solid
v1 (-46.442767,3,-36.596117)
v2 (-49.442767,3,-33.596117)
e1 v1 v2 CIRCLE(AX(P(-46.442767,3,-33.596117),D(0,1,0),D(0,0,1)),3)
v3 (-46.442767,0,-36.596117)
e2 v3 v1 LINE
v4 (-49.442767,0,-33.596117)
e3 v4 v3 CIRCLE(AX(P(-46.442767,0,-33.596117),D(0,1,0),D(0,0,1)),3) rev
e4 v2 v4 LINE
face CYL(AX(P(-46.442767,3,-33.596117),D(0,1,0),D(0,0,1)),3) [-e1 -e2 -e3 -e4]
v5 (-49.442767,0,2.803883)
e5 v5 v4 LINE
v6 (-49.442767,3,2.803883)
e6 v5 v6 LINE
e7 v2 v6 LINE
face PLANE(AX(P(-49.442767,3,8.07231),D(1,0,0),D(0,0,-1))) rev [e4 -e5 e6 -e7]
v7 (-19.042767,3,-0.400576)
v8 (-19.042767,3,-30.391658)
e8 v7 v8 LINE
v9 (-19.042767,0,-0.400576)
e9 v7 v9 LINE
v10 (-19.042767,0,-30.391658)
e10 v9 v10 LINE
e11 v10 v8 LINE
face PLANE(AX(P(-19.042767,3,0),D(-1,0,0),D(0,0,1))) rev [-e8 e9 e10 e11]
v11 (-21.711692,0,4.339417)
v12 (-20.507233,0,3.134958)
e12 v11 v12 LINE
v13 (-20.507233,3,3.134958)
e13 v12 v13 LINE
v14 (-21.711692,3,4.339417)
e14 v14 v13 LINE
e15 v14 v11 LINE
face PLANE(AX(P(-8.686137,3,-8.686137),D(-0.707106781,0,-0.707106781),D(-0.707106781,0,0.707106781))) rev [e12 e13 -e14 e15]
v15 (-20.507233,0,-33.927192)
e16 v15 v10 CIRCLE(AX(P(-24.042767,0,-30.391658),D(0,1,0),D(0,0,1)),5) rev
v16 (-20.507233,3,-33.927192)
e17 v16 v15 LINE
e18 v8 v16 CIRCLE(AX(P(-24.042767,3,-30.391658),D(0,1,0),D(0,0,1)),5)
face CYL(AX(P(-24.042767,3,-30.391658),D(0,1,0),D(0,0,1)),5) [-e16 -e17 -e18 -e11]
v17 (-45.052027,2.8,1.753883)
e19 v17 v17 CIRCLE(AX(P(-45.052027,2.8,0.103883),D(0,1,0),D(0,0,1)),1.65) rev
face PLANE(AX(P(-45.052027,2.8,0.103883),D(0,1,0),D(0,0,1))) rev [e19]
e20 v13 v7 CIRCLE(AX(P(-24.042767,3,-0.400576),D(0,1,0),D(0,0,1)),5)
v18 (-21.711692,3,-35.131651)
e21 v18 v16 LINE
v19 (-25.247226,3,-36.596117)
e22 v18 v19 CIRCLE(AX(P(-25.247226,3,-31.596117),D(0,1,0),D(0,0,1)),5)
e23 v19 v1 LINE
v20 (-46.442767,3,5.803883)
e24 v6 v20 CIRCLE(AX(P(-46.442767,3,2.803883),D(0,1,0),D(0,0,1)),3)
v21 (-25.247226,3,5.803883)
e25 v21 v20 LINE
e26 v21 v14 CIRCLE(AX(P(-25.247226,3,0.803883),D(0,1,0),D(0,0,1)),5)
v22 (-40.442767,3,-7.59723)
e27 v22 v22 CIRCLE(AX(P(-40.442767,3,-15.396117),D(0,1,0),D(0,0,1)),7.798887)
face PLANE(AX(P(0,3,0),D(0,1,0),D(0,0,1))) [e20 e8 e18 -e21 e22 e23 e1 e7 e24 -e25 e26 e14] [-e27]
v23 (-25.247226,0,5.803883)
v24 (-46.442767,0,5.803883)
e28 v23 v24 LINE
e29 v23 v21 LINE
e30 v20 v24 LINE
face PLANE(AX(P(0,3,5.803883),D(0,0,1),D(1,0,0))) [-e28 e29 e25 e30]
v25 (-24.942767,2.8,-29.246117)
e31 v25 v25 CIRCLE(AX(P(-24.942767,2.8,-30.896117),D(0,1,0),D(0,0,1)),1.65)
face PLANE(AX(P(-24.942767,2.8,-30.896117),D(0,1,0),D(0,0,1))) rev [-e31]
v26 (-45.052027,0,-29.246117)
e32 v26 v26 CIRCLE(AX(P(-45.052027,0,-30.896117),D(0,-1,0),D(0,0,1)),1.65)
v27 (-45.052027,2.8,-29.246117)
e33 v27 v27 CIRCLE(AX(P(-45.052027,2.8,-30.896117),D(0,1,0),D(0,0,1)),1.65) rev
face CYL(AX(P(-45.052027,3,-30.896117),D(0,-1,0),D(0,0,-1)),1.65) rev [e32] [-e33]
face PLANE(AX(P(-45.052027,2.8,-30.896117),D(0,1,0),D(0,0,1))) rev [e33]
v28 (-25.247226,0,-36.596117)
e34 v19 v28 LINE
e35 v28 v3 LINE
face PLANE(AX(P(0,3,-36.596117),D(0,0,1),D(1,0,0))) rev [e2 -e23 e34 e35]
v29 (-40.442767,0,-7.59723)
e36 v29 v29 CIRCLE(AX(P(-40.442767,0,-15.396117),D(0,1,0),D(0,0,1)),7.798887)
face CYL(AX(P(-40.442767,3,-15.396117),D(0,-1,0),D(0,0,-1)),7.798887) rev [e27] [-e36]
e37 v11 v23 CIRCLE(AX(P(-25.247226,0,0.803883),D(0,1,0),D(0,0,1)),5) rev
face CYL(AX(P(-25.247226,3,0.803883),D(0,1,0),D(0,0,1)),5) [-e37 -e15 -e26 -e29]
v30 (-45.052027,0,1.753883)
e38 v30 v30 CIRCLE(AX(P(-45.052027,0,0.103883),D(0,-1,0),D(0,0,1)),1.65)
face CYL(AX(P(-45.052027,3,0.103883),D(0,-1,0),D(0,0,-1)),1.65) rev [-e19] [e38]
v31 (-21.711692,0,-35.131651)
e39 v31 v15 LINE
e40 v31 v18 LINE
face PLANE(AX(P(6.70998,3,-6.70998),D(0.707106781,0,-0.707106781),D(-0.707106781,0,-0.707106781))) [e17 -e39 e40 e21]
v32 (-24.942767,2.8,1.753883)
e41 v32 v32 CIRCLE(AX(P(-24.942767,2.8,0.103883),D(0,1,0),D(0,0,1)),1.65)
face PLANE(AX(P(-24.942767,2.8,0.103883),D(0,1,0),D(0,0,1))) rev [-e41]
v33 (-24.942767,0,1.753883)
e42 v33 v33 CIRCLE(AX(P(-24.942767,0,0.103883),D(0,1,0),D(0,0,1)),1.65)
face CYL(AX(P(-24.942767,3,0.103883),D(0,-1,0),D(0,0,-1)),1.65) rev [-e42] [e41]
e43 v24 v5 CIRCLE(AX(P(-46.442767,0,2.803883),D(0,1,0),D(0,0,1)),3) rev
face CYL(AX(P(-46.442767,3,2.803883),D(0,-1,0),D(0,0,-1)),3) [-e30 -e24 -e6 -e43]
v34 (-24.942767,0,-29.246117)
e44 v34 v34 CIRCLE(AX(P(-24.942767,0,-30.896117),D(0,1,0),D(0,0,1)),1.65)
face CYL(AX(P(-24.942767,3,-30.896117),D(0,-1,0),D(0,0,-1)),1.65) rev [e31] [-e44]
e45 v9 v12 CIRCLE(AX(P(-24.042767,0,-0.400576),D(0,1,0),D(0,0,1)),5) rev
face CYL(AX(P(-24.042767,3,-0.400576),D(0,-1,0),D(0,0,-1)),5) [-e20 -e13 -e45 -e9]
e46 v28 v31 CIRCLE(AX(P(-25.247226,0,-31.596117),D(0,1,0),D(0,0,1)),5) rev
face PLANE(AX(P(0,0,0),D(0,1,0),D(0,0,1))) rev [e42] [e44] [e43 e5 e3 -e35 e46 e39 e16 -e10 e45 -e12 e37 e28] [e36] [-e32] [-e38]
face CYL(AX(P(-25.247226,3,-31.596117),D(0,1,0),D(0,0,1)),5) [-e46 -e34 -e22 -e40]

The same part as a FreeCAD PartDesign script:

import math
import FreeCAD as App
import Part
import Sketcher

V = App.Vector


def edges_at(feature, points):
    """Names of the edges that pass closest to the given points."""
    edges = feature.Shape.Edges
    near = lambda p: min(range(len(edges)), key=lambda i: edges[i].distToShape(Part.Vertex(*p))[0])
    return sorted({f"Edge{near(p) + 1}" for p in points})


def add_polygon(sketch, points):
    """Adds a closed chain of lines whose ends are joined by coincident constraints."""
    first, n = sketch.GeometryCount, len(points)
    for a, b in zip(points, points[1:] + points[:1]):
        sketch.addGeometry(Part.LineSegment(App.Vector(*a, 0), App.Vector(*b, 0)), False)
    for i in range(n):
        sketch.addConstraint(Sketcher.Constraint("Coincident", first + i, 2, first + (i + 1) % n, 1))

doc = App.newDocument("Part")
body = doc.addObject("PartDesign::Body", "Body")

# Sketch on XZ plane
sketch1 = body.newObject("Sketcher::SketchObject", "Sketch")
sketch1.AttachmentSupport = (doc.getObject("XZ_Plane"), [""])
sketch1.MapMode = "FlatFace"
sketch1.addGeometry(Part.ArcOfCircle(Part.Circle(V(-46.9, -26.4, 0), V(0, 0, 1), 14.7), math.radians(180), math.radians(224)), False)
sketch1.addGeometry(Part.LineSegment(V(-61.6, -26.4, 0), V(-61.6, -4.4, 0)), False)
sketch1.addGeometry(Part.ArcOfCircle(Part.Circle(V(-46.9, -4.4, 0), V(0, 0, 1), 14.7), math.radians(136), math.radians(180)), False)
sketch1.addGeometry(Part.LineSegment(V(-57.5, 5.8, 0), V(-23.2, 5.8, 0)), False)
sketch1.addGeometry(Part.LineSegment(V(-23.2, 5.8, 0), V(-19, 1.7, 0)), False)
sketch1.addGeometry(Part.LineSegment(V(-19, 1.7, 0), V(-19, -32.5, 0)), False)
sketch1.addGeometry(Part.LineSegment(V(-19, -32.5, 0), V(-23.2, -36.6, 0)), False)
sketch1.addGeometry(Part.LineSegment(V(-23.2, -36.6, 0), V(-57.5, -36.6, 0)), False)
sketch1.addGeometry(Part.Circle(V(-55.9, 0.1, 0), V(0, 0, 1), 1.6), False)
sketch1.addGeometry(Part.Circle(V(-24.9, 0.1, 0), V(0, 0, 1), 1.6), False)
sketch1.addGeometry(Part.Circle(V(-55.9, -30.9, 0), V(0, 0, 1), 1.6), False)
sketch1.addGeometry(Part.Circle(V(-40.4, -15.4, 0), V(0, 0, 1), 7.8), False)
sketch1.addGeometry(Part.Circle(V(-24.9, -30.9, 0), V(0, 0, 1), 1.6), False)
sketch1.addConstraint(Sketcher.Constraint("Tangent", 0, 1, 1, 1))
sketch1.addConstraint(Sketcher.Constraint("Tangent", 1, 2, 2, 2))
sketch1.addConstraint(Sketcher.Constraint("Coincident", 2, 1, 3, 1))
sketch1.addConstraint(Sketcher.Constraint("Coincident", 3, 2, 4, 1))
sketch1.addConstraint(Sketcher.Constraint("Coincident", 4, 2, 5, 1))
sketch1.addConstraint(Sketcher.Constraint("Coincident", 5, 2, 6, 1))
sketch1.addConstraint(Sketcher.Constraint("Coincident", 6, 2, 7, 1))
sketch1.addConstraint(Sketcher.Constraint("Coincident", 7, 2, 0, 2))
sketch1.addConstraint(Sketcher.Constraint("Vertical", 1))
sketch1.addConstraint(Sketcher.Constraint("Horizontal", 3))
sketch1.addConstraint(Sketcher.Constraint("Vertical", 5))
sketch1.addConstraint(Sketcher.Constraint("Horizontal", 7))
sketch1.addConstraint(Sketcher.Constraint("Equal", 0, 2))
sketch1.addConstraint(Sketcher.Constraint("Equal", 8, 9))
sketch1.addConstraint(Sketcher.Constraint("Equal", 9, 10))
sketch1.addConstraint(Sketcher.Constraint("Equal", 10, 12))
sketch1.addConstraint(Sketcher.Constraint("Perpendicular", 4, 6))
sketch1.addConstraint(Sketcher.Constraint("Horizontal", 8, 3, 9, 3))
sketch1.addConstraint(Sketcher.Constraint("Horizontal", 10, 3, 12, 3))
sketch1.addConstraint(Sketcher.Constraint("Vertical", 8, 3, 10, 3))
sketch1.addConstraint(Sketcher.Constraint("Vertical", 9, 3, 12, 3))
sketch1.addConstraint(Sketcher.Constraint("Vertical", 3, 2, 6, 2))
sketch1.addConstraint(Sketcher.Constraint("Vertical", 2, 1, 7, 2))
sketch1.addConstraint(Sketcher.Constraint("Equal", 4, 6))
sketch1.addConstraint(Sketcher.Constraint("Diameter", 8, 3.3))
sketch1.addConstraint(Sketcher.Constraint("Radius", 0, 14.7))
sketch1.addConstraint(Sketcher.Constraint("DistanceX", 8, 3, 2, 3, 9.0))
sketch1.addConstraint(Sketcher.Constraint("DistanceX", 2, 3, 9, 3, 22.0))
sketch1.addConstraint(Sketcher.Constraint("DistanceY", 10, 3, 8, 3, 31.0))
sketch1.addConstraint(Sketcher.Constraint("DistanceX", 2, 3, 11, 3, 6.5))
sketch1.addConstraint(Sketcher.Constraint("DistanceY", 11, 3, 9, 3, 15.5))
sketch1.addConstraint(Sketcher.Constraint("DistanceY", 8, 3, 2, 1, 5.7))
sketch1.addConstraint(Sketcher.Constraint("DistanceX", 9, 3, 4, 2, 5.9))
sketch1.addConstraint(Sketcher.Constraint("DistanceY", 6, 2, 12, 3, 5.7))
sketch1.addConstraint(Sketcher.Constraint("Diameter", 11, 15.597775))
sketch1.addConstraint(Sketcher.Constraint("DistanceX", 3, 1, 3, 2, 34.346647))
sketch1.addConstraint(Sketcher.Constraint("DistanceY", 1, 1, 1, 2, 21.988946))
sketch1.addConstraint(Sketcher.Constraint("DistanceY", 0, 3, -1, 1, 26.39059))
sketch1.addConstraint(Sketcher.Constraint("DistanceX", 0, 3, -1, 1, 46.942767))
pad1 = body.newObject("PartDesign::Pad", "Pad")
pad1.Profile = sketch1
pad1.Length = 3
pad1.Reversed = True
doc.recompute()

fillet = body.newObject("PartDesign::Fillet", "Fillet")
fillet.Base = (pad1, edges_at(pad1, [
    (-23.176, 1.5, -36.596),
    (-19.043, 1.5, -32.463),
    (-19.043, 1.5, 1.67),
    (-23.176, 1.5, 5.804),
    (-57.523, 1.5, 5.804),
    (-57.523, 1.5, -36.596),
]))
fillet.Radius = 5

# Sketch on XZ plane
sketch2 = body.newObject("Sketcher::SketchObject", "Sketch001")
sketch2.AttachmentSupport = (doc.getObject("XZ_Plane"), [""])
sketch2.MapMode = "FlatFace"
add_polygon(sketch2, [(-72, 8), (-72, -39), (-49, -39), (-49, 8)])  # lines 0-3
sketch2.addConstraint(Sketcher.Constraint("Vertical", 0))
sketch2.addConstraint(Sketcher.Constraint("Horizontal", 1))
sketch2.addConstraint(Sketcher.Constraint("Vertical", 2))
sketch2.addConstraint(Sketcher.Constraint("Horizontal", 3))
sketch2.addConstraint(Sketcher.Constraint("DistanceX", 1, 1, 1, 2, 22.67551))
sketch2.addConstraint(Sketcher.Constraint("DistanceY", 0, 2, 0, 1, 46.936855))
sketch2.addConstraint(Sketcher.Constraint("DistanceY", -1, 1, 2, 2, 8.07231))
sketch2.addConstraint(Sketcher.Constraint("DistanceX", 0, 2, -1, 1, 72.118277))
pocket1 = body.newObject("PartDesign::Pocket", "Pocket")
pocket1.Profile = sketch2
pocket1.Type = "ThroughAll"
pocket1.Midplane = True
doc.recompute()

fillet2 = body.newObject("PartDesign::Fillet", "Fillet001")
fillet2.Base = (pocket1, edges_at(pocket1, [(-49.443, 1.5, -36.596), (-49.443, 1.5, 5.804)]))
fillet2.Radius = 3

# Sketch on XZ plane
sketch3 = body.newObject("Sketcher::SketchObject", "Sketch002")
sketch3.AttachmentSupport = (doc.getObject("XZ_Plane"), [""])
sketch3.MapMode = "FlatFace"
sketch3.addGeometry(Part.Circle(V(-45.1, -30.9, 0), V(0, 0, 1), 1.6), False)
sketch3.addGeometry(Part.Circle(V(-45.1, 0.1, 0), V(0, 0, 1), 1.6), False)
sketch3.addConstraint(Sketcher.Constraint("Equal", 0, 1))
sketch3.addConstraint(Sketcher.Constraint("Vertical", 0, 3, 1, 3))
sketch3.addConstraint(Sketcher.Constraint("Diameter", 0, 3.3))
sketch3.addConstraint(Sketcher.Constraint("DistanceY", 0, 3, 1, 3, 31.0))
sketch3.addConstraint(Sketcher.Constraint("DistanceX", 0, 3, -1, 1, 45.052027))
sketch3.addConstraint(Sketcher.Constraint("DistanceY", 0, 3, -1, 1, 30.896117))
pocket2 = body.newObject("PartDesign::Pocket", "Pocket001")
pocket2.Profile = sketch3
pocket2.Type = "ThroughAll"

# Sketch on XZ plane
sketch4 = body.newObject("Sketcher::SketchObject", "Sketch003")
sketch4.AttachmentSupport = (doc.getObject("XZ_Plane"), [""])
sketch4.MapMode = "FlatFace"
sketch4.AttachmentOffset = App.Placement(V(0, 0, -2.8), App.Rotation())
sketch4.addGeometry(Part.Circle(V(-45.1, -30.9, 0), V(0, 0, 1), 1.6), False)
sketch4.addGeometry(Part.Circle(V(-24.9, -30.9, 0), V(0, 0, 1), 1.6), False)
sketch4.addGeometry(Part.Circle(V(-24.9, 0.1, 0), V(0, 0, 1), 1.6), False)
sketch4.addGeometry(Part.Circle(V(-45.1, 0.1, 0), V(0, 0, 1), 1.6), False)
sketch4.addConstraint(Sketcher.Constraint("Equal", 0, 1))
sketch4.addConstraint(Sketcher.Constraint("Equal", 1, 2))
sketch4.addConstraint(Sketcher.Constraint("Equal", 2, 3))
sketch4.addConstraint(Sketcher.Constraint("Horizontal", 0, 3, 1, 3))
sketch4.addConstraint(Sketcher.Constraint("Horizontal", 2, 3, 3, 3))
sketch4.addConstraint(Sketcher.Constraint("Vertical", 1, 3, 2, 3))
sketch4.addConstraint(Sketcher.Constraint("Vertical", 0, 3, 3, 3))
sketch4.addConstraint(Sketcher.Constraint("Diameter", 0, 3.3))
sketch4.addConstraint(Sketcher.Constraint("DistanceY", 1, 3, 2, 3, 31.0))
sketch4.addConstraint(Sketcher.Constraint("DistanceX", 0, 3, 1, 3, 20.10926))
sketch4.addConstraint(Sketcher.Constraint("DistanceX", 0, 3, -1, 1, 45.052027))
sketch4.addConstraint(Sketcher.Constraint("DistanceY", 0, 3, -1, 1, 30.896117))
pad2 = body.newObject("PartDesign::Pad", "Pad001")
pad2.Profile = sketch4
pad2.Length = 0.2
pad2.Reversed = True

doc.recompute()
